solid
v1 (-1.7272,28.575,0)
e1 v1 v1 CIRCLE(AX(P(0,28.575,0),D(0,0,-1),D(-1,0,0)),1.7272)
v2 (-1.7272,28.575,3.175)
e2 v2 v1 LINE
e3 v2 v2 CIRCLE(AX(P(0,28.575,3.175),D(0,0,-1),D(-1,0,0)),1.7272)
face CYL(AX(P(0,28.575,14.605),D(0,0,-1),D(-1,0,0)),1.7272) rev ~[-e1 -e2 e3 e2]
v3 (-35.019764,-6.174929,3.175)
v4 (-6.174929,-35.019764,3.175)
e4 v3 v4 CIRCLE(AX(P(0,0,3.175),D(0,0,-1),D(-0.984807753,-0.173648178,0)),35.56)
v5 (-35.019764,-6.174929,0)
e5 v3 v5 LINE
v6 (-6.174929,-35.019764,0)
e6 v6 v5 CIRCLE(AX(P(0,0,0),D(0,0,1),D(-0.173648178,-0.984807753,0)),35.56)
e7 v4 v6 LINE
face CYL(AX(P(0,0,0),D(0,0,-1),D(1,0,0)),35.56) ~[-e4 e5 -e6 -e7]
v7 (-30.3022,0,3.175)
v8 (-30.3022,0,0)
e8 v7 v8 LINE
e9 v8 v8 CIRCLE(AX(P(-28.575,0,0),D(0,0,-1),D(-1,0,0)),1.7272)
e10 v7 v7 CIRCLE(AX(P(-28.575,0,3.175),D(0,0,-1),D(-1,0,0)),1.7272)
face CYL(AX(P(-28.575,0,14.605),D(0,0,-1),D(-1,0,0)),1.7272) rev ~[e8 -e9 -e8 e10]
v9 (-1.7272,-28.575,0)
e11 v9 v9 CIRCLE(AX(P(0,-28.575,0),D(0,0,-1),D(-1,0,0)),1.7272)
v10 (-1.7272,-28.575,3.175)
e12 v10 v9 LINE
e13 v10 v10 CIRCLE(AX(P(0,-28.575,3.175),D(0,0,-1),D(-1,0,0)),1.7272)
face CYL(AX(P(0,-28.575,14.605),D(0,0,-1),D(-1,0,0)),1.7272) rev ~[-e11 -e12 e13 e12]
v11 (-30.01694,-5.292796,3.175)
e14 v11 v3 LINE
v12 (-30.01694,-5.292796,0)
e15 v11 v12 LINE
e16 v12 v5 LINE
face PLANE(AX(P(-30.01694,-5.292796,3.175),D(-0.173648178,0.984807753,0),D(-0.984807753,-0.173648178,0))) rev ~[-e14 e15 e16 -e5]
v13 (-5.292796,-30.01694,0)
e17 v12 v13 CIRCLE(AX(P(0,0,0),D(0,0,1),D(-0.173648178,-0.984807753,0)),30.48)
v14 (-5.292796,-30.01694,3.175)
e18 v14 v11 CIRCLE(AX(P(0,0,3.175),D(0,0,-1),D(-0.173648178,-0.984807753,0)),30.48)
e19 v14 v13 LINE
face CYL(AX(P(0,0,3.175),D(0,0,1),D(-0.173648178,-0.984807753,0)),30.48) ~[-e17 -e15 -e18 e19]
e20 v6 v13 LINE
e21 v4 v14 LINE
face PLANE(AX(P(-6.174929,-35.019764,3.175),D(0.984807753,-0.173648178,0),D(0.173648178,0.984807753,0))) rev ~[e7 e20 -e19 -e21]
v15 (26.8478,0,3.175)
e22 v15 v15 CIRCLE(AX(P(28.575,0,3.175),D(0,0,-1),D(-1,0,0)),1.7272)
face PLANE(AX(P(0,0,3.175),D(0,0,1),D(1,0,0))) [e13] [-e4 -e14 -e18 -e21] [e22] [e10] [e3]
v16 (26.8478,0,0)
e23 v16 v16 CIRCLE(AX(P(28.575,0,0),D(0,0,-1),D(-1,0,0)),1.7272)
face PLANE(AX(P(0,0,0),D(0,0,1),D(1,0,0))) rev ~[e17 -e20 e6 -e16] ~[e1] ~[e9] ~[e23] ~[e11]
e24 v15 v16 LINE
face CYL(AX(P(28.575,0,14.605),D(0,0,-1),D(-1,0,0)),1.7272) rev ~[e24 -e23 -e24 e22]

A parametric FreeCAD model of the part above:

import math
import FreeCAD as App
import Part
import Sketcher

V = App.Vector
Q = App.Units.Quantity

doc = App.newDocument("Part")
body = doc.addObject("PartDesign::Body", "Body")

sketch1 = body.newObject("Sketcher::SketchObject", "Sketch")
sketch1.AttachmentSupport = (doc.getObject("XY_Plane"), [""])
sketch1.MapMode = "FlatFace"
sketch1.addGeometry(Part.Circle(V(0, 0, 0), V(0, 0, 1), 36), False)
sketch1.addConstraint([
    Sketcher.Constraint("Coincident", 0, 3, -1, 1),
    Sketcher.Constraint("Diameter", 0, Q("2.8 in")),
])
pad1 = body.newObject("PartDesign::Pad", "Pad")
pad1.Profile = sketch1
pad1.Length = Q("0.125 in")

sketch2 = body.newObject("Sketcher::SketchObject", "Sketch001")
sketch2.AttachmentSupport = (doc.getObject("XY_Plane"), [""])
sketch2.MapMode = "FlatFace"
sketch2.AttachmentOffset = App.Placement(V(0, 0, 0.125 * 25.4), App.Rotation())
sketch2.addGeometry([
    Part.Circle(V(-28.6, 0, 0), V(0, 0, 1), 1.7),
    Part.Circle(V(0, 28.6, 0), V(0, 0, 1), 1.7),
    Part.Circle(V(28.6, 0, 0), V(0, 0, 1), 1.7),
    Part.Circle(V(0, -28.6, 0), V(0, 0, 1), 1.7),
], False)
sketch2.addConstraint([
    Sketcher.Constraint("Equal", 0, 1),
    Sketcher.Constraint("Equal", 1, 2),
    Sketcher.Constraint("Equal", 2, 3),
    Sketcher.Constraint("Symmetric", 0, 3, 2, 3, -1, 1),
    Sketcher.Constraint("Symmetric", 1, 3, 3, 3, -1, 1),
    Sketcher.Constraint("PointOnObject", 0, 3, -1),
    Sketcher.Constraint("PointOnObject", 1, 3, -2),
    Sketcher.Constraint("Diameter", 0, Q("0.136 in")),
    Sketcher.Constraint("DistanceX", 0, 3, 2, 3, Q("2.25 in")),
    Sketcher.Constraint("DistanceY", 3, 3, 1, 3, Q("2.25 in")),
])
doc.recompute()
hole = body.newObject("PartDesign::Hole", "Hole")
hole.Profile = sketch2
hole.ThreadType = "None"
hole.Diameter = Q("0.136 in")
hole.DepthType = "Dimension"
hole.Depth = Q("0.45 in")
hole.DrillPoint = "Angled"
hole.DrillPointAngle = 118

sketch3 = body.newObject("Sketcher::SketchObject", "Sketch002")
sketch3.AttachmentSupport = (doc.getObject("XY_Plane"), [""])
sketch3.MapMode = "FlatFace"
sketch3.AttachmentOffset = App.Placement(V(0, 0, 0.125 * 25.4), App.Rotation())
sketch3.addGeometry([
    Part.ArcOfCircle(Part.Circle(V(0, 0, 0), V(0, 0, 1), 30), math.radians(-170), math.radians(-100)),
    Part.LineSegment(V(-30, -5, 0), V(-35, -6, 0)),
    Part.ArcOfCircle(Part.Circle(V(0, 0, 0), V(0, 0, 1), 36), math.radians(-170), math.radians(-100)),
    Part.LineSegment(V(-6, -35, 0), V(-5, -30, 0)),
], False)
sketch3.addConstraint([
    Sketcher.Constraint("Coincident", 0, 1, 1, 1),
    Sketcher.Constraint("Coincident", 1, 2, 2, 1),
    Sketcher.Constraint("Coincident", 2, 2, 3, 1),
    Sketcher.Constraint("Coincident", 3, 2, 0, 2),
    Sketcher.Constraint("Coincident", 0, 3, -1, 1),
    Sketcher.Constraint("Coincident", 2, 3, -1, 1),
    Sketcher.Constraint("Radius", 0, Q("1.2 in")),
    Sketcher.Constraint("Radius", 2, Q("1.4 in")),
    Sketcher.Constraint("Angle", 1, Q("-170 deg")),
    Sketcher.Constraint("Angle", 3, Q("80 deg")),
    Sketcher.Constraint("DistanceX", 0, 1, -1, 1, Q("30.01694 mm")),
    Sketcher.Constraint("DistanceX", 2, 2, -1, 1, Q("6.174929 mm")),
])
pocket1 = body.newObject("PartDesign::Pocket", "Pocket")
pocket1.Profile = sketch3
pocket1.Type = "ThroughAll"

doc.recompute()
